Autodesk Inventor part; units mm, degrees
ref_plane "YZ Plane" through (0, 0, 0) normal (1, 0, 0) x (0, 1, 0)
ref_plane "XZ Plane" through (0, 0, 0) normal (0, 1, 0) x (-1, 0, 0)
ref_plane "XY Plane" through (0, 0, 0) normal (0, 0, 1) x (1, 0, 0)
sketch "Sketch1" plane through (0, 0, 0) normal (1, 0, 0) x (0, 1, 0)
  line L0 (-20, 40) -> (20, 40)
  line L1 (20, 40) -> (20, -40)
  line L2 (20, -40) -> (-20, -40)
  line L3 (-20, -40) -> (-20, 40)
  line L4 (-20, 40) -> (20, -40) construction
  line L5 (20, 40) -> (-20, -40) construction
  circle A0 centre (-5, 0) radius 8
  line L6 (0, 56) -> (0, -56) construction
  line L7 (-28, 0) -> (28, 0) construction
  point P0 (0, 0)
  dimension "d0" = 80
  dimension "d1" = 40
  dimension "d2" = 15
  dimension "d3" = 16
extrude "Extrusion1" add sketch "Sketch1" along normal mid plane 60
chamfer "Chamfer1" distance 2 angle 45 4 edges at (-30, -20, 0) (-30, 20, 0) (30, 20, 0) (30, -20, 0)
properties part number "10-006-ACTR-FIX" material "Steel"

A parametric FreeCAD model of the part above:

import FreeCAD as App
import Part
import Sketcher
Q = App.Units.Quantity


def edges_at(feature, points):
    """Names of the edges that pass closest to the given points."""
    edges = feature.Shape.Edges
    near = lambda p: min(range(len(edges)), key=lambda i: edges[i].distToShape(Part.Vertex(*p))[0])
    return sorted({f"Edge{near(p) + 1}" for p in points})

doc = App.newDocument("Part")
body = doc.addObject("PartDesign::Body", "Body")

# Sketch on YZ plane
sketch1 = doc.addObject("Sketcher::SketchObject", "Sketch")
body.addObject(sketch1)
sketch1.AttachmentSupport = (doc.YZ_Plane, [""])
sketch1.MapMode = "FlatFace"
sketch1.addGeometry([
    Part.LineSegment(App.Vector(20, 40, 0), App.Vector(-20, 40, 0)),  # 0
    Part.LineSegment(App.Vector(-20, 40, 0), App.Vector(-20, -40, 0)),  # 1
    Part.LineSegment(App.Vector(-20, -40, 0), App.Vector(20, -40, 0)),  # 2
    Part.LineSegment(App.Vector(20, -40, 0), App.Vector(20, 40, 0)),  # 3
    Part.Circle(App.Vector(-5, 0, 0), App.Vector(0, 0, 1), 8),  # 4
], False)
sketch1.addConstraint([
    Sketcher.Constraint("Coincident", 0, 2, 1, 1),
    Sketcher.Constraint("Coincident", 1, 2, 2, 1),
    Sketcher.Constraint("Coincident", 2, 2, 3, 1),
    Sketcher.Constraint("Coincident", 3, 2, 0, 1),
    Sketcher.Constraint("Horizontal", 0),
    Sketcher.Constraint("Vertical", 1),
    Sketcher.Constraint("Horizontal", 2),
    Sketcher.Constraint("Vertical", 3),
    Sketcher.Constraint("Symmetric", 0, 2, 2, 2, -1, 1),
    Sketcher.Constraint("PointOnObject", 4, 3, -1),
    Sketcher.Constraint("Diameter", 4, Q("16 mm")),
    Sketcher.Constraint("DistanceX", 0, 2, 0, 1, Q("40 mm")),
    Sketcher.Constraint("DistanceY", 1, 2, 1, 1, Q("80 mm")),
    Sketcher.Constraint("DistanceX", 0, 2, 4, 3, Q("15 mm")),
])
pad1 = doc.addObject("PartDesign::Pad", "Pad")
body.addObject(pad1)
pad1.Profile = sketch1
pad1.Length = 60
pad1.Midplane = True
doc.recompute()

chamfer = doc.addObject("PartDesign::Chamfer", "Chamfer")
body.addObject(chamfer)
chamfer.Base = (pad1, edges_at(pad1, [
    (-30, -20, 0),
    (-30, 20, 0),
    (30, 20, 0),
    (30, -20, 0),
]))
chamfer.Size = 2

doc.recompute()
